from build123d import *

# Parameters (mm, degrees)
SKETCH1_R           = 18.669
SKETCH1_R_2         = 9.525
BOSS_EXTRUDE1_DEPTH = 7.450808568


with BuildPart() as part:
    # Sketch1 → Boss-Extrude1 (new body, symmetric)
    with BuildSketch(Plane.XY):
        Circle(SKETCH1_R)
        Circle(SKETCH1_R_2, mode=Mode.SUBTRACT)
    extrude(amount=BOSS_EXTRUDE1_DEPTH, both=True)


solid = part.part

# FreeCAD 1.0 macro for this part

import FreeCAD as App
import Part
import Sketcher

V = App.Vector
Q = App.Units.Quantity

doc = App.newDocument("Part")
body = doc.addObject("PartDesign::Body", "Body")

# Sketch on XY plane
sketch1 = doc.addObject("Sketcher::SketchObject", "Sketch")
body.addObject(sketch1)
sketch1.AttachmentSupport = (doc.XY_Plane, [""])
sketch1.MapMode = "FlatFace"
sketch1.addGeometry(Part.Circle(V(0, 0, 0), V(0, 0, 1), 19), False)
sketch1.addGeometry(Part.Circle(V(0, 0, 0), V(0, 0, 1), 10), False)
sketch1.addConstraint(Sketcher.Constraint("Coincident", 0, 3, -1, 1))
sketch1.addConstraint(Sketcher.Constraint("Coincident", 1, 3, -1, 1))
sketch1.addConstraint(Sketcher.Constraint("Diameter", 0, Q("1.47 in")))
sketch1.addConstraint(Sketcher.Constraint("Diameter", 1, Q("0.75 in")))
pad1 = doc.addObject("PartDesign::Pad", "Pad")
body.addObject(pad1)
pad1.Profile = sketch1
pad1.Length = 14.901617
pad1.Midplane = True

doc.recompute()
